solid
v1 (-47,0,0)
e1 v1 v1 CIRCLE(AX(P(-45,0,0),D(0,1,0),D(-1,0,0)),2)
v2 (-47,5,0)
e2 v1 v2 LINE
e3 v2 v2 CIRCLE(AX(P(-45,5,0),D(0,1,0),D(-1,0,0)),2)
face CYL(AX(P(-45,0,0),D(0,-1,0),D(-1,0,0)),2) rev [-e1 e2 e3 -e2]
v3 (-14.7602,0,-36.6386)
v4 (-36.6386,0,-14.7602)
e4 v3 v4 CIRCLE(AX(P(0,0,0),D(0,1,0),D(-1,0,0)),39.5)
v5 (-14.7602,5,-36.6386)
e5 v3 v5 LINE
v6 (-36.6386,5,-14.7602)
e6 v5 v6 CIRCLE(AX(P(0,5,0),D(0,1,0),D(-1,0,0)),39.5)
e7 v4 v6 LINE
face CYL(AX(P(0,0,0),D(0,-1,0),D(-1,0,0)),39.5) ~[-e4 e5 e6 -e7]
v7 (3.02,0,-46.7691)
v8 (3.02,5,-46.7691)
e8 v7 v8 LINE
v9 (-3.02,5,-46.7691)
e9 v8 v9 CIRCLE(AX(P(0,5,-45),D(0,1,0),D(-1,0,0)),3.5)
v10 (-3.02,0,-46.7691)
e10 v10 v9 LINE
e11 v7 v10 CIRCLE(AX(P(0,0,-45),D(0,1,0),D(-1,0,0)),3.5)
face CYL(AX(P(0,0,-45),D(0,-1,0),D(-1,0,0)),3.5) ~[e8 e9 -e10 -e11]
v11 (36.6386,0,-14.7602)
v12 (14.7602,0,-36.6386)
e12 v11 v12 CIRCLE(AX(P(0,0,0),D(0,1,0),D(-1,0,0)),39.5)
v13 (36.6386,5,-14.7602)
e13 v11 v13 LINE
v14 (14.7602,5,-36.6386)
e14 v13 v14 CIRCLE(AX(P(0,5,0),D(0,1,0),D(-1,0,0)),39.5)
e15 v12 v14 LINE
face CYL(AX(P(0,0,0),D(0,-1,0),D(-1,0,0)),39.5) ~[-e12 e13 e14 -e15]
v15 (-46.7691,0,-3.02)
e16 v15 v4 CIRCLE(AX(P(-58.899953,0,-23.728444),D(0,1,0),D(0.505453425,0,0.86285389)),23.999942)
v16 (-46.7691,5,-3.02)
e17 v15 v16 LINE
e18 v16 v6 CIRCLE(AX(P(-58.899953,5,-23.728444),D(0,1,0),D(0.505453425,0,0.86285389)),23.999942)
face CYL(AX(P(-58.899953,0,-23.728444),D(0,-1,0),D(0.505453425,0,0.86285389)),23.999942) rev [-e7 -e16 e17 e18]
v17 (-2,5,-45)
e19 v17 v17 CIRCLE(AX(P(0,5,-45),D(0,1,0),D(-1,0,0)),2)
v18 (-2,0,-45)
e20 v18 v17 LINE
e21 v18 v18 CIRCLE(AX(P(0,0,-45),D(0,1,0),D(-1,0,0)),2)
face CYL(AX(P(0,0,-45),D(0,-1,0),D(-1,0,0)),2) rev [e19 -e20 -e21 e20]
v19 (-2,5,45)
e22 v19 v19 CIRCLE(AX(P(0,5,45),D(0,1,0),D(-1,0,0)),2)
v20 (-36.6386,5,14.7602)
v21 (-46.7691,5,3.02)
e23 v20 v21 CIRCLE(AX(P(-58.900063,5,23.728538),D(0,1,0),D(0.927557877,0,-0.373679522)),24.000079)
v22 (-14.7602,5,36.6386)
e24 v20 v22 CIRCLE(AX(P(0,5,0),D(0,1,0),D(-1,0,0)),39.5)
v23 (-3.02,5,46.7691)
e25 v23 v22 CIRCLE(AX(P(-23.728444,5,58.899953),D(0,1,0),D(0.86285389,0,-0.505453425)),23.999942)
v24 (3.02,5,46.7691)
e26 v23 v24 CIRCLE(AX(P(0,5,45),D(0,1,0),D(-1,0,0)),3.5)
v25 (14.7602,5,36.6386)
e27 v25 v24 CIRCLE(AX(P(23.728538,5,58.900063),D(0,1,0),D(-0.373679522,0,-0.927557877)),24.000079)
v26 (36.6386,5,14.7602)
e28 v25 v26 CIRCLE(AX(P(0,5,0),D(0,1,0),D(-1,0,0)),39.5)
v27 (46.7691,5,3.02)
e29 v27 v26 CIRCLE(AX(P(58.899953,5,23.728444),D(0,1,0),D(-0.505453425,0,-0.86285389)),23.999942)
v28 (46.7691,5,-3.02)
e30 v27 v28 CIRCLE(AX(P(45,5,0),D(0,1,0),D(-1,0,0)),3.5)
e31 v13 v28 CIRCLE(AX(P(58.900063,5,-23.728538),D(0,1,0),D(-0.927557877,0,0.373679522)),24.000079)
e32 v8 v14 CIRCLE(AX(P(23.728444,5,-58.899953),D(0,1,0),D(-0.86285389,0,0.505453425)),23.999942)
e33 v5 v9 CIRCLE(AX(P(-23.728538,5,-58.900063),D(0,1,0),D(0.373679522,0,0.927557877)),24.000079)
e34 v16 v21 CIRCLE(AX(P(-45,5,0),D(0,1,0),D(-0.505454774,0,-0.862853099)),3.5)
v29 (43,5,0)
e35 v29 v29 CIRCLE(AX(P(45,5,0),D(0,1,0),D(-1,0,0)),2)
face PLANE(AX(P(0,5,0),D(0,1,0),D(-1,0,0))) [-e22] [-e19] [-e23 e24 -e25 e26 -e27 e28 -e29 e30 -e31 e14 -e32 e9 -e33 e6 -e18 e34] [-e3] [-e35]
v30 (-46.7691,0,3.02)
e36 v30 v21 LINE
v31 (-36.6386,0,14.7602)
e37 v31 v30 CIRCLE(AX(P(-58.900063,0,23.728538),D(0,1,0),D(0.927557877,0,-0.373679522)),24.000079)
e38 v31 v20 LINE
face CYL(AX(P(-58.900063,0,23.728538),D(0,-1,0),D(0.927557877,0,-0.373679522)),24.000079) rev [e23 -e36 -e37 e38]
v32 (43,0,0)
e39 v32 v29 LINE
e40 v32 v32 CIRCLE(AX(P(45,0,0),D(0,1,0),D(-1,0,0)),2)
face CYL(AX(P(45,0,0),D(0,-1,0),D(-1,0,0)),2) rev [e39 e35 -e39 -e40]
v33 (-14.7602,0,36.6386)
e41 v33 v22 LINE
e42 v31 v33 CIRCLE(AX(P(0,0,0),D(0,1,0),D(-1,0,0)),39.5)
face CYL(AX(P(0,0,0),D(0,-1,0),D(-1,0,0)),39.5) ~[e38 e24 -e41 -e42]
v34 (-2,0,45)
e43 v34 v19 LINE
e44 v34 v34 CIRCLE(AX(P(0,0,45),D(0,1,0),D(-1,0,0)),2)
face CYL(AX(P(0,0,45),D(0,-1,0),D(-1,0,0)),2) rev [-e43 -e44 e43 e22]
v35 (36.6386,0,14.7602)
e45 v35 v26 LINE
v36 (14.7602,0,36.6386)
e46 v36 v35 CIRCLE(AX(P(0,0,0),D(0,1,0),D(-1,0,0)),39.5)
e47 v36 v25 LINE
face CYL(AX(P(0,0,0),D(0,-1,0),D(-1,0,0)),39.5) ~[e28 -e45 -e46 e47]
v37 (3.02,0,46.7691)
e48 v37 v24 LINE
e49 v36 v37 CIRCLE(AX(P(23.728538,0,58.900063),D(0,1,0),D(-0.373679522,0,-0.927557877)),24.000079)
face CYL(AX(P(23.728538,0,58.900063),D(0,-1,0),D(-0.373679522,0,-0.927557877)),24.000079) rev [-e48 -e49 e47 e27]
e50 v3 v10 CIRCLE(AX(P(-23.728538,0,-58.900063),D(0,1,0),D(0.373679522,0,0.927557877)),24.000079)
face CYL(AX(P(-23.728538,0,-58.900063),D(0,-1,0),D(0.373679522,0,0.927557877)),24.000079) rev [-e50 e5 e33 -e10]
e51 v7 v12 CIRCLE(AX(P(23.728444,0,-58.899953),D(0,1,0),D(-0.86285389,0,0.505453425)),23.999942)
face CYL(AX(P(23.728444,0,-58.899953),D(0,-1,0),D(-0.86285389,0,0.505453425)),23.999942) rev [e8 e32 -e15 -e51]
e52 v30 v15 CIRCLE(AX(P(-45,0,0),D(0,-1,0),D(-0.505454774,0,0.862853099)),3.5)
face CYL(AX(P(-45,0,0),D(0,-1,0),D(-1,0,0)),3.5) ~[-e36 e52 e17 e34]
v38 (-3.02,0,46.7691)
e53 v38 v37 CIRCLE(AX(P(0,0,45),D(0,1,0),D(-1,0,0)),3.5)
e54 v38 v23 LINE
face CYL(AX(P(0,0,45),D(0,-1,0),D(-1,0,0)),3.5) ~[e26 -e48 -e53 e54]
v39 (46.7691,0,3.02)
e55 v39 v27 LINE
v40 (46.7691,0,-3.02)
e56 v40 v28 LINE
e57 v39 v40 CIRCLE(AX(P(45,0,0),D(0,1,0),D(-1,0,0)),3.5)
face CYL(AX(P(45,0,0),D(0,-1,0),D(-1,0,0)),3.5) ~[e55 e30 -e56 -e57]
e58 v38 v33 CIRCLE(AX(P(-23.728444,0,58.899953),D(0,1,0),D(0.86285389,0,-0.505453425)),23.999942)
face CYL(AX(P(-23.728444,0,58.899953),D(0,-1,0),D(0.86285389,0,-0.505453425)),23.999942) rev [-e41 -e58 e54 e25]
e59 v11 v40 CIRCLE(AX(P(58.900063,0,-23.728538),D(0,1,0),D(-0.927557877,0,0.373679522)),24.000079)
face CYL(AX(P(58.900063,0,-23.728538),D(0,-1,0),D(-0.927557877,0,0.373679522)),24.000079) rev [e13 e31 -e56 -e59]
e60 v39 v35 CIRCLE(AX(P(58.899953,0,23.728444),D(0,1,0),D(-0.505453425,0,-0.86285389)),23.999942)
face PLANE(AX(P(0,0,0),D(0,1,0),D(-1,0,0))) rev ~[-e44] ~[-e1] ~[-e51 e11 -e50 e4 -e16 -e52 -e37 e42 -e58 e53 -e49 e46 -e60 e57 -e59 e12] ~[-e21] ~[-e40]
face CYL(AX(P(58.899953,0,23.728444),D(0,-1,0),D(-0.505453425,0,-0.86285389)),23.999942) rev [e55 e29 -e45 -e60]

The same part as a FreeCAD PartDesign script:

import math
import FreeCAD as App
import Part
import Sketcher
from FreeCAD import Vector
Q = App.Units.Quantity

doc = App.newDocument("Part")
body = doc.addObject("PartDesign::Body", "Body")

sketch1 = body.newObject("Sketcher::SketchObject", "Sketch")
sketch1.AttachmentSupport = (doc.getObject("XZ_Plane"), [""])
sketch1.MapMode = "FlatFace"
sketch1.addGeometry([
    Part.ArcOfCircle(Part.Circle(Vector(0, 0, 0), Vector(0, 0, 1), 39.5), math.radians(-158), math.radians(-112)),
    Part.ArcOfCircle(Part.Circle(Vector(-58.9, -23.7, 0), Vector(0, 0, 1), 24), math.radians(22), math.radians(60)),
    Part.ArcOfCircle(Part.Circle(Vector(-45, 0, 0), Vector(0, 0, 1), 3.5), math.radians(120), math.radians(240)),
    Part.ArcOfCircle(Part.Circle(Vector(-58.9, 23.7, 0), Vector(0, 0, 1), 24), math.radians(-60), math.radians(-22)),
    Part.ArcOfCircle(Part.Circle(Vector(0, 0, 0), Vector(0, 0, 1), 39.5), math.radians(112), math.radians(158)),
    Part.ArcOfCircle(Part.Circle(Vector(-23.7, 58.9, 0), Vector(0, 0, 1), 24), math.radians(-68), math.radians(-30)),
    Part.ArcOfCircle(Part.Circle(Vector(0, 45, 0), Vector(0, 0, 1), 3.5), math.radians(30), math.radians(150)),
    Part.ArcOfCircle(Part.Circle(Vector(23.7, 58.9, 0), Vector(0, 0, 1), 24), math.radians(-150), math.radians(-112)),
    Part.ArcOfCircle(Part.Circle(Vector(0, 0, 0), Vector(0, 0, 1), 39.5), math.radians(22), math.radians(68)),
    Part.ArcOfCircle(Part.Circle(Vector(58.9, 23.7, 0), Vector(0, 0, 1), 24), math.radians(-158), math.radians(-120)),
    Part.ArcOfCircle(Part.Circle(Vector(45, 0, 0), Vector(0, 0, 1), 3.5), math.radians(-60), math.radians(60)),
    Part.ArcOfCircle(Part.Circle(Vector(58.9, -23.7, 0), Vector(0, 0, 1), 24), math.radians(120), math.radians(158)),
    Part.ArcOfCircle(Part.Circle(Vector(0, 0, 0), Vector(0, 0, 1), 39.5), math.radians(-68), math.radians(-22)),
    Part.ArcOfCircle(Part.Circle(Vector(23.7, -58.9, 0), Vector(0, 0, 1), 24), math.radians(112), math.radians(150)),
    Part.ArcOfCircle(Part.Circle(Vector(0, -45, 0), Vector(0, 0, 1), 3.5), math.radians(-150), math.radians(-30)),
    Part.ArcOfCircle(Part.Circle(Vector(-23.7, -58.9, 0), Vector(0, 0, 1), 24), math.radians(30), math.radians(68)),
    Part.Circle(Vector(-45, 0, 0), Vector(0, 0, 1), 2),
    Part.Circle(Vector(0, -45, 0), Vector(0, 0, 1), 2),
    Part.Circle(Vector(45, 0, 0), Vector(0, 0, 1), 2),
    Part.Circle(Vector(0, 45, 0), Vector(0, 0, 1), 2),
], False)
sketch1.addConstraint([
    Sketcher.Constraint("Tangent", 0, 1, 1, 1),
    Sketcher.Constraint("Tangent", 1, 2, 2, 2),
    Sketcher.Constraint("Tangent", 2, 1, 3, 1),
    Sketcher.Constraint("Tangent", 3, 2, 4, 2),
    Sketcher.Constraint("Tangent", 4, 1, 5, 1),
    Sketcher.Constraint("Tangent", 5, 2, 6, 2),
    Sketcher.Constraint("Tangent", 6, 1, 7, 1),
    Sketcher.Constraint("Tangent", 7, 2, 8, 2),
    Sketcher.Constraint("Tangent", 8, 1, 9, 1),
    Sketcher.Constraint("Tangent", 9, 2, 10, 2),
    Sketcher.Constraint("Tangent", 10, 1, 11, 1),
    Sketcher.Constraint("Tangent", 11, 2, 12, 2),
    Sketcher.Constraint("Tangent", 12, 1, 13, 1),
    Sketcher.Constraint("Tangent", 13, 2, 14, 2),
    Sketcher.Constraint("Tangent", 14, 1, 15, 1),
    Sketcher.Constraint("Tangent", 15, 2, 0, 2),
    Sketcher.Constraint("Coincident", 0, 3, -1, 1),
    Sketcher.Constraint("Coincident", 4, 3, -1, 1),
    Sketcher.Constraint("Coincident", 8, 3, -1, 1),
    Sketcher.Constraint("Coincident", 12, 3, -1, 1),
    Sketcher.Constraint("Coincident", 16, 3, 2, 3),
    Sketcher.Constraint("Coincident", 17, 3, 14, 3),
    Sketcher.Constraint("Coincident", 18, 3, 10, 3),
    Sketcher.Constraint("Coincident", 19, 3, 6, 3),
    Sketcher.Constraint("Equal", 1, 3),
    Sketcher.Constraint("Equal", 0, 4),
    Sketcher.Constraint("Equal", 3, 5),
    Sketcher.Constraint("Equal", 2, 6),
    Sketcher.Constraint("Equal", 5, 7),
    Sketcher.Constraint("Equal", 4, 8),
    Sketcher.Constraint("Equal", 7, 9),
    Sketcher.Constraint("Equal", 6, 10),
    Sketcher.Constraint("Equal", 9, 11),
    Sketcher.Constraint("Equal", 8, 12),
    Sketcher.Constraint("Equal", 11, 13),
    Sketcher.Constraint("Equal", 10, 14),
    Sketcher.Constraint("Equal", 13, 15),
    Sketcher.Constraint("Equal", 16, 17),
    Sketcher.Constraint("Equal", 17, 18),
    Sketcher.Constraint("Equal", 18, 19),
    Sketcher.Constraint("Symmetric", 2, 3, 10, 3, -1, 1),
    Sketcher.Constraint("Symmetric", 6, 3, 14, 3, -1, 1),
    Sketcher.Constraint("PointOnObject", 2, 3, -1),
    Sketcher.Constraint("PointOnObject", 6, 3, -2),
    Sketcher.Constraint("Diameter", 16, Q("4 mm")),
    Sketcher.Constraint("Radius", 1, Q("24 mm")),
    Sketcher.Constraint("Radius", 0, Q("39.5 mm")),
    Sketcher.Constraint("Radius", 2, Q("3.5 mm")),
    Sketcher.Constraint("DistanceX", 2, 3, -1, 1, Q("45 mm")),
    Sketcher.Constraint("DistanceY", -1, 1, 6, 3, Q("45 mm")),
])
pad1 = body.newObject("PartDesign::Pad", "Pad")
pad1.Profile = sketch1
pad1.Length = 5
pad1.Reversed = True

doc.recompute()
